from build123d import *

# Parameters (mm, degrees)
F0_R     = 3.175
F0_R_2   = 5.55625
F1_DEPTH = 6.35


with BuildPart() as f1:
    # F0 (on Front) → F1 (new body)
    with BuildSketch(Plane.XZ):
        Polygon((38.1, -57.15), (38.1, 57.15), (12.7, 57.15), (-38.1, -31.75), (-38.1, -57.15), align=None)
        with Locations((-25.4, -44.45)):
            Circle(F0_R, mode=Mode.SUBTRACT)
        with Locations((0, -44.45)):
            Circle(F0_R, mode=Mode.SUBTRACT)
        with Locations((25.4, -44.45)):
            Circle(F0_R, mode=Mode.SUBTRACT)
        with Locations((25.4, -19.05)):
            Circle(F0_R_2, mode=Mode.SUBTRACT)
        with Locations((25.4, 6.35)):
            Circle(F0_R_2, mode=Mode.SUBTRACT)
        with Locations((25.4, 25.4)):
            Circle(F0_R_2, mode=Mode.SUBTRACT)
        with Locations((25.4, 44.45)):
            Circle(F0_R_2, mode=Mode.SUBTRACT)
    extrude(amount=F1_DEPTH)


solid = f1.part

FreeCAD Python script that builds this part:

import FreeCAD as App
import Part
import Sketcher
Q = App.Units.Quantity


def add_polygon(sketch, points):
    """Adds a closed chain of lines whose ends are joined by coincident constraints."""
    first, n = sketch.GeometryCount, len(points)
    for a, b in zip(points, points[1:] + points[:1]):
        sketch.addGeometry(Part.LineSegment(App.Vector(*a, 0), App.Vector(*b, 0)), False)
    for i in range(n):
        sketch.addConstraint(Sketcher.Constraint("Coincident", first + i, 2, first + (i + 1) % n, 1))

doc = App.newDocument("Part")
body = doc.addObject("PartDesign::Body", "Body")

# Sketch on XZ plane
sketch1 = body.newObject("Sketcher::SketchObject", "Sketch")
sketch1.AttachmentSupport = (doc.getObject("XZ_Plane"), [""])
sketch1.MapMode = "FlatFace"
add_polygon(sketch1, [(38.1, -57.1), (38.1, 57.1), (12.7, 57.1), (-38.1, -31.8), (-38.1, -57.1)])  # lines 0-4
sketch1.addGeometry(Part.Circle(App.Vector(-25.4, -44.5, 0), App.Vector(0, 0, 1), 3.2), False)  # 5
sketch1.addGeometry(Part.Circle(App.Vector(0, -44.5, 0), App.Vector(0, 0, 1), 3.2), False)  # 6
sketch1.addGeometry(Part.Circle(App.Vector(25.4, -44.5, 0), App.Vector(0, 0, 1), 3.2), False)  # 7
sketch1.addGeometry(Part.Circle(App.Vector(25.4, -19.1, 0), App.Vector(0, 0, 1), 5.6), False)  # 8
sketch1.addGeometry(Part.Circle(App.Vector(25.4, 6.3, 0), App.Vector(0, 0, 1), 5.6), False)  # 9
sketch1.addGeometry(Part.Circle(App.Vector(25.4, 25.4, 0), App.Vector(0, 0, 1), 5.6), False)  # 10
sketch1.addGeometry(Part.Circle(App.Vector(25.4, 44.5, 0), App.Vector(0, 0, 1), 5.6), False)  # 11
sketch1.addConstraint([
    Sketcher.Constraint("Vertical", 0),
    Sketcher.Constraint("Horizontal", 1),
    Sketcher.Constraint("Vertical", 3),
    Sketcher.Constraint("Horizontal", 4),
    Sketcher.Constraint("Equal", 5, 6),
    Sketcher.Constraint("Equal", 6, 7),
    Sketcher.Constraint("Equal", 8, 9),
    Sketcher.Constraint("Equal", 9, 10),
    Sketcher.Constraint("Equal", 10, 11),
    Sketcher.Constraint("Symmetric", 5, 3, 11, 3, -1, 1),
    Sketcher.Constraint("Symmetric", 0, 2, 3, 2, -1, 1),
    Sketcher.Constraint("Symmetric", 5, 3, 7, 3, -2),
    Sketcher.Constraint("PointOnObject", 6, 3, -2),
    Sketcher.Constraint("Horizontal", 5, 3, 6, 3),
    Sketcher.Constraint("Vertical", 7, 3, 8, 3),
    Sketcher.Constraint("Vertical", 8, 3, 9, 3),
    Sketcher.Constraint("Vertical", 9, 3, 10, 3),
    Sketcher.Constraint("Equal", 1, 3),
    Sketcher.Constraint("Diameter", 5, Q("0.25 in")),
    Sketcher.Constraint("DistanceX", 1, 2, 1, 1, Q("1 in")),
    Sketcher.Constraint("DistanceX", 4, 1, 4, 2, Q("3 in")),
    Sketcher.Constraint("Diameter", 8, Q("0.4375 in")),
    Sketcher.Constraint("DistanceY", 0, 1, 0, 2, Q("4.5 in")),
    Sketcher.Constraint("DistanceX", 5, 3, -1, 1, Q("1 in")),
    Sketcher.Constraint("DistanceY", -1, 1, 10, 3, Q("1 in")),
    Sketcher.Constraint("DistanceY", 7, 3, 8, 3, Q("1 in")),
    Sketcher.Constraint("DistanceY", 8, 3, 9, 3, Q("1 in")),
    Sketcher.Constraint("DistanceY", 9, 3, 0, 2, Q("2 in")),
])
pad1 = body.newObject("PartDesign::Pad", "Pad")
pad1.Profile = sketch1
pad1.Length = Q("0.25 in")

doc.recompute()
